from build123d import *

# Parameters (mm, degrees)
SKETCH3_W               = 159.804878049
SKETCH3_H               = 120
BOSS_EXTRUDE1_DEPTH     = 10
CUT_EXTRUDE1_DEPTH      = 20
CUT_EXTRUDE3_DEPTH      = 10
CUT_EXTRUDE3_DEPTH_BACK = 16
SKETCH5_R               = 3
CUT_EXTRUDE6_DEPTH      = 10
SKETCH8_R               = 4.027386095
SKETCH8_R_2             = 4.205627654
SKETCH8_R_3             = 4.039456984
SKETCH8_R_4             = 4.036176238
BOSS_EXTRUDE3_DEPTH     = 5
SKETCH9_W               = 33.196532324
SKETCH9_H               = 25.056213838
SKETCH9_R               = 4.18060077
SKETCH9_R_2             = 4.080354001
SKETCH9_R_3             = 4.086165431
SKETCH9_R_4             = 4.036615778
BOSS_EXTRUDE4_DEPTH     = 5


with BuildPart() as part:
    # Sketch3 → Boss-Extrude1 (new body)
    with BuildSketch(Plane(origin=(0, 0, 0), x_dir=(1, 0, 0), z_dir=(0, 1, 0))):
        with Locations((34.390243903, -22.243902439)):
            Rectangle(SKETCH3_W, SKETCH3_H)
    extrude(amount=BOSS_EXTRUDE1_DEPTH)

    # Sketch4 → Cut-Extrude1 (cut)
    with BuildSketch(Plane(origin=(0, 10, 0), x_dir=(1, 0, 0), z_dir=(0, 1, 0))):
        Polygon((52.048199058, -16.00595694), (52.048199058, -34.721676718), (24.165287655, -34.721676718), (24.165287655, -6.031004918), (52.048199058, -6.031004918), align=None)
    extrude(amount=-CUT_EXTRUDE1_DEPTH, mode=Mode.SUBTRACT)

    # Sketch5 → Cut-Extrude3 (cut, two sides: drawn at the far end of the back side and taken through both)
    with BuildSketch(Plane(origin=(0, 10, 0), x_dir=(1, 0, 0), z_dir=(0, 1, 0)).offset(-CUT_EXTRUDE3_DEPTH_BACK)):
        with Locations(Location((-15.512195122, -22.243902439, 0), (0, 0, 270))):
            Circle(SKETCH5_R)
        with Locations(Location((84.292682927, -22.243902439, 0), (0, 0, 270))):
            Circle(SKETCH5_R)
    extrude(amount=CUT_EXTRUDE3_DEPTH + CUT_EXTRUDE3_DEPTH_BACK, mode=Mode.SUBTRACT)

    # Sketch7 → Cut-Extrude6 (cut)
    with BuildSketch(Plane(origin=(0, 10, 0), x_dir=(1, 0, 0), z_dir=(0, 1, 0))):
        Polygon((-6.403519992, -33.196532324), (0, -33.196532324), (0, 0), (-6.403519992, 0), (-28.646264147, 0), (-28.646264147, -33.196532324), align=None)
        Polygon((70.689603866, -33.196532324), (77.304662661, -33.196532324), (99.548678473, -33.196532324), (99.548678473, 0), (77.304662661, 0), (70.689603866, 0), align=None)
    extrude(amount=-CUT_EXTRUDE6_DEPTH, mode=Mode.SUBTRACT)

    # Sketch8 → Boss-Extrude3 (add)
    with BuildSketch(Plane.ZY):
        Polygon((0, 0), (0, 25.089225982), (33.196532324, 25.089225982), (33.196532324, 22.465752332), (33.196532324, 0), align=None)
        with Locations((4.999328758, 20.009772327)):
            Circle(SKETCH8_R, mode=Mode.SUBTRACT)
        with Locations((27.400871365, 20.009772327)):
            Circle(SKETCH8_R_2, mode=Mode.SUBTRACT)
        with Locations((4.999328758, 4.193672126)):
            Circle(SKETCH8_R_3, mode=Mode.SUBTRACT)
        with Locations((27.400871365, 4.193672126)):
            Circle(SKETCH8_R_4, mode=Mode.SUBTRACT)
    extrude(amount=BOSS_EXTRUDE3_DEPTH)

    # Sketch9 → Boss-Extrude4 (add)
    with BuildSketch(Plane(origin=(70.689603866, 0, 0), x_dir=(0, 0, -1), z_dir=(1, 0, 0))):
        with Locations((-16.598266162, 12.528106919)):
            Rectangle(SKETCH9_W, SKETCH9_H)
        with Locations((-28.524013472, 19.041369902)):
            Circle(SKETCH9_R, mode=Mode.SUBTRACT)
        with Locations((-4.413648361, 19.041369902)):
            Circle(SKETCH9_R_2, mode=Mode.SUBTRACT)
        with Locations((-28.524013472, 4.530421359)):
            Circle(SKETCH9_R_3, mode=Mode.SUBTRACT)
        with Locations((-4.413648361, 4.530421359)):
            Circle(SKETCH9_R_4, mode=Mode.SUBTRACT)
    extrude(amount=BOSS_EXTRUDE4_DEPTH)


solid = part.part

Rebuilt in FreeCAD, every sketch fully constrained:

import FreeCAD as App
import Part
import Sketcher
Q = App.Units.Quantity


def add_polygon(sketch, points):
    """Adds a closed chain of lines whose ends are joined by coincident constraints."""
    first, n = sketch.GeometryCount, len(points)
    for a, b in zip(points, points[1:] + points[:1]):
        sketch.addGeometry(Part.LineSegment(App.Vector(*a, 0), App.Vector(*b, 0)), False)
    for i in range(n):
        sketch.addConstraint(Sketcher.Constraint("Coincident", first + i, 2, first + (i + 1) % n, 1))

doc = App.newDocument("Part")
body = doc.addObject("PartDesign::Body", "Body")

# Sketch on XZ plane
sketch1 = body.newObject("Sketcher::SketchObject", "Sketch")
sketch1.AttachmentSupport = (doc.getObject("XZ_Plane"), [""])
sketch1.MapMode = "FlatFace"
add_polygon(sketch1, [(-46, -38), (-46, 82), (114, 82), (114, -38)])  # lines 0-3
sketch1.addConstraint(Sketcher.Constraint("Vertical", 0))
sketch1.addConstraint(Sketcher.Constraint("Horizontal", 1))
sketch1.addConstraint(Sketcher.Constraint("Vertical", 2))
sketch1.addConstraint(Sketcher.Constraint("Horizontal", 3))
sketch1.addConstraint(Sketcher.Constraint("DistanceY", 0, 1, 0, 2, Q("120 mm")))
sketch1.addConstraint(Sketcher.Constraint("DistanceX", 1, 1, 1, 2, Q("159.804878 mm")))
sketch1.addConstraint(Sketcher.Constraint("DistanceX", 0, 2, -1, 1, Q("45.512195 mm")))
sketch1.addConstraint(Sketcher.Constraint("DistanceY", -1, 1, 0, 2, Q("82.243902 mm")))
pad1 = body.newObject("PartDesign::Pad", "Pad")
pad1.Profile = sketch1
pad1.Length = 10
pad1.Reversed = True

# Sketch on XZ plane
sketch2 = body.newObject("Sketcher::SketchObject", "Sketch001")
sketch2.AttachmentSupport = (doc.getObject("XZ_Plane"), [""])
sketch2.MapMode = "FlatFace"
sketch2.AttachmentOffset = App.Placement(App.Vector(0, 0, -10), App.Rotation())
add_polygon(sketch2, [(52, 35), (52, 6), (24, 6), (24, 35)])  # lines 0-3
sketch2.addConstraint(Sketcher.Constraint("Vertical", 0))
sketch2.addConstraint(Sketcher.Constraint("Horizontal", 1))
sketch2.addConstraint(Sketcher.Constraint("Vertical", 2))
sketch2.addConstraint(Sketcher.Constraint("Horizontal", 3))
sketch2.addConstraint(Sketcher.Constraint("DistanceX", 1, 2, 1, 1, Q("27.882911 mm")))
sketch2.addConstraint(Sketcher.Constraint("DistanceY", 0, 2, 0, 1, Q("28.690672 mm")))
sketch2.addConstraint(Sketcher.Constraint("DistanceX", -1, 1, 0, 2, Q("52.048199 mm")))
sketch2.addConstraint(Sketcher.Constraint("DistanceY", -1, 1, 0, 2, Q("6.031005 mm")))
pocket1 = body.newObject("PartDesign::Pocket", "Pocket")
pocket1.Profile = sketch2
pocket1.Length = 20
pocket1.Reversed = True

# Sketch on XZ plane
sketch3 = body.newObject("Sketcher::SketchObject", "Sketch002")
sketch3.AttachmentSupport = (doc.getObject("XZ_Plane"), [""])
sketch3.MapMode = "FlatFace"
sketch3.AttachmentOffset = App.Placement(App.Vector(0, 0, -10), App.Rotation())
sketch3.addGeometry(Part.Circle(App.Vector(-15.5, 22.2, 0), App.Vector(0, 0, 1), 3), False)
sketch3.addGeometry(Part.Circle(App.Vector(84.3, 22.2, 0), App.Vector(0, 0, 1), 3), False)
sketch3.addConstraint(Sketcher.Constraint("Equal", 0, 1))
sketch3.addConstraint(Sketcher.Constraint("Horizontal", 0, 3, 1, 3))
sketch3.addConstraint(Sketcher.Constraint("Diameter", 0, Q("6 mm")))
sketch3.addConstraint(Sketcher.Constraint("DistanceX", 0, 3, 1, 3, Q("99.804878 mm")))
sketch3.addConstraint(Sketcher.Constraint("DistanceX", 0, 3, -1, 1, Q("15.512195 mm")))
sketch3.addConstraint(Sketcher.Constraint("DistanceY", -1, 1, 0, 3, Q("22.243902 mm")))
pocket2 = body.newObject("PartDesign::Pocket", "Pocket001")
pocket2.Profile = sketch3
pocket2.Type = "ThroughAll"
pocket2.Midplane = True

# Sketch on XZ plane
sketch4 = body.newObject("Sketcher::SketchObject", "Sketch003")
sketch4.AttachmentSupport = (doc.getObject("XZ_Plane"), [""])
sketch4.MapMode = "FlatFace"
sketch4.AttachmentOffset = App.Placement(App.Vector(0, 0, -10), App.Rotation())
add_polygon(sketch4, [(0, 33), (0, 0), (-29, 0), (-29, 33)])  # lines 0-3
add_polygon(sketch4, [(71, 33), (100, 33), (100, 0), (71, 0)])  # lines 4-7
sketch4.addConstraint(Sketcher.Constraint("Vertical", 0))
sketch4.addConstraint(Sketcher.Constraint("Horizontal", 1))
sketch4.addConstraint(Sketcher.Constraint("Vertical", 2))
sketch4.addConstraint(Sketcher.Constraint("Horizontal", 3))
sketch4.addConstraint(Sketcher.Constraint("Horizontal", 4))
sketch4.addConstraint(Sketcher.Constraint("Vertical", 5))
sketch4.addConstraint(Sketcher.Constraint("Horizontal", 6))
sketch4.addConstraint(Sketcher.Constraint("Vertical", 7))
sketch4.addConstraint(Sketcher.Constraint("Coincident", 0, 2, -1, 1))
sketch4.addConstraint(Sketcher.Constraint("PointOnObject", 5, 2, -1))
sketch4.addConstraint(Sketcher.Constraint("Horizontal", 3, 2, 4, 2))
sketch4.addConstraint(Sketcher.Constraint("DistanceX", 1, 2, 1, 1, Q("28.646264 mm")))
sketch4.addConstraint(Sketcher.Constraint("DistanceX", 4, 1, 4, 2, Q("28.859075 mm")))
sketch4.addConstraint(Sketcher.Constraint("DistanceY", 0, 2, 0, 1, Q("33.196532 mm")))
sketch4.addConstraint(Sketcher.Constraint("DistanceX", -1, 1, 4, 2, Q("99.548678 mm")))
pocket3 = body.newObject("PartDesign::Pocket", "Pocket002")
pocket3.Profile = sketch4
pocket3.Length = 10
pocket3.Reversed = True

# Sketch on YZ plane
sketch5 = body.newObject("Sketcher::SketchObject", "Sketch004")
sketch5.AttachmentSupport = (doc.getObject("YZ_Plane"), [""])
sketch5.MapMode = "FlatFace"
add_polygon(sketch5, [(25.1, 0), (0, 0), (0, 33.2), (25.1, 33.2)])  # lines 0-3
sketch5.addGeometry(Part.Circle(App.Vector(4.2, 27.4, 0), App.Vector(0, 0, 1), 4), False)  # 4
sketch5.addGeometry(Part.Circle(App.Vector(4.2, 5, 0), App.Vector(0, 0, 1), 4), False)  # 5
sketch5.addGeometry(Part.Circle(App.Vector(20, 27.4, 0), App.Vector(0, 0, 1), 4.2), False)  # 6
sketch5.addGeometry(Part.Circle(App.Vector(20, 5, 0), App.Vector(0, 0, 1), 4), False)  # 7
sketch5.addConstraint(Sketcher.Constraint("Horizontal", 0))
sketch5.addConstraint(Sketcher.Constraint("Vertical", 1))
sketch5.addConstraint(Sketcher.Constraint("Horizontal", 2))
sketch5.addConstraint(Sketcher.Constraint("Vertical", 3))
sketch5.addConstraint(Sketcher.Constraint("Coincident", 0, 2, -1, 1))
sketch5.addConstraint(Sketcher.Constraint("Horizontal", 4, 3, 6, 3))
sketch5.addConstraint(Sketcher.Constraint("Horizontal", 5, 3, 7, 3))
sketch5.addConstraint(Sketcher.Constraint("Vertical", 4, 3, 5, 3))
sketch5.addConstraint(Sketcher.Constraint("Vertical", 6, 3, 7, 3))
sketch5.addConstraint(Sketcher.Constraint("Diameter", 4, Q("8.072352 mm")))
sketch5.addConstraint(Sketcher.Constraint("Diameter", 5, Q("8.078914 mm")))
sketch5.addConstraint(Sketcher.Constraint("Diameter", 6, Q("8.411255 mm")))
sketch5.addConstraint(Sketcher.Constraint("Diameter", 7, Q("8.054772 mm")))
sketch5.addConstraint(Sketcher.Constraint("DistanceX", 4, 3, 6, 3, Q("15.8161 mm")))
sketch5.addConstraint(Sketcher.Constraint("DistanceX", 0, 2, 0, 1, Q("25.089226 mm")))
sketch5.addConstraint(Sketcher.Constraint("DistanceY", 1, 1, 1, 2, Q("33.196532 mm")))
sketch5.addConstraint(Sketcher.Constraint("DistanceY", -1, 1, 4, 3, Q("27.400871 mm")))
sketch5.addConstraint(Sketcher.Constraint("DistanceY", -1, 1, 5, 3, Q("4.999329 mm")))
sketch5.addConstraint(Sketcher.Constraint("DistanceX", -1, 1, 4, 3, Q("4.193672 mm")))
pad2 = body.newObject("PartDesign::Pad", "Pad001")
pad2.Profile = sketch5
pad2.Length = 5
pad2.Reversed = True

# Sketch on YZ plane
sketch6 = body.newObject("Sketcher::SketchObject", "Sketch005")
sketch6.AttachmentSupport = (doc.getObject("YZ_Plane"), [""])
sketch6.MapMode = "FlatFace"
sketch6.AttachmentOffset = App.Placement(App.Vector(0, 0, 70.689604), App.Rotation())
add_polygon(sketch6, [(25.1, 33.2), (0, 33.2), (0, 0), (25.1, 0)])  # lines 0-3
sketch6.addGeometry(Part.Circle(App.Vector(4.5, 28.5, 0), App.Vector(0, 0, 1), 4.1), False)  # 4
sketch6.addGeometry(Part.Circle(App.Vector(4.5, 4.4, 0), App.Vector(0, 0, 1), 4), False)  # 5
sketch6.addGeometry(Part.Circle(App.Vector(19, 28.5, 0), App.Vector(0, 0, 1), 4.2), False)  # 6
sketch6.addGeometry(Part.Circle(App.Vector(19, 4.4, 0), App.Vector(0, 0, 1), 4.1), False)  # 7
sketch6.addConstraint(Sketcher.Constraint("Horizontal", 0))
sketch6.addConstraint(Sketcher.Constraint("Vertical", 1))
sketch6.addConstraint(Sketcher.Constraint("Horizontal", 2))
sketch6.addConstraint(Sketcher.Constraint("Vertical", 3))
sketch6.addConstraint(Sketcher.Constraint("Coincident", 1, 2, -1, 1))
sketch6.addConstraint(Sketcher.Constraint("Horizontal", 4, 3, 6, 3))
sketch6.addConstraint(Sketcher.Constraint("Horizontal", 5, 3, 7, 3))
sketch6.addConstraint(Sketcher.Constraint("Vertical", 4, 3, 5, 3))
sketch6.addConstraint(Sketcher.Constraint("Vertical", 6, 3, 7, 3))
sketch6.addConstraint(Sketcher.Constraint("Diameter", 6, Q("8.361202 mm")))
sketch6.addConstraint(Sketcher.Constraint("Diameter", 4, Q("8.172331 mm")))
sketch6.addConstraint(Sketcher.Constraint("Diameter", 5, Q("8.073232 mm")))
sketch6.addConstraint(Sketcher.Constraint("Diameter", 7, Q("8.160708 mm")))
sketch6.addConstraint(Sketcher.Constraint("DistanceX", 0, 2, 0, 1, Q("25.056214 mm")))
sketch6.addConstraint(Sketcher.Constraint("DistanceY", 1, 2, 1, 1, Q("33.196532 mm")))
sketch6.addConstraint(Sketcher.Constraint("DistanceX", -1, 1, 4, 3, Q("4.530421 mm")))
sketch6.addConstraint(Sketcher.Constraint("DistanceY", -1, 1, 5, 3, Q("4.413648 mm")))
sketch6.addConstraint(Sketcher.Constraint("DistanceX", -1, 1, 6, 3, Q("19.04137 mm")))
sketch6.addConstraint(Sketcher.Constraint("DistanceY", 4, 3, 0, 2, Q("4.672519 mm")))
pad3 = body.newObject("PartDesign::Pad", "Pad002")
pad3.Profile = sketch6
pad3.Length = 5

doc.recompute()
